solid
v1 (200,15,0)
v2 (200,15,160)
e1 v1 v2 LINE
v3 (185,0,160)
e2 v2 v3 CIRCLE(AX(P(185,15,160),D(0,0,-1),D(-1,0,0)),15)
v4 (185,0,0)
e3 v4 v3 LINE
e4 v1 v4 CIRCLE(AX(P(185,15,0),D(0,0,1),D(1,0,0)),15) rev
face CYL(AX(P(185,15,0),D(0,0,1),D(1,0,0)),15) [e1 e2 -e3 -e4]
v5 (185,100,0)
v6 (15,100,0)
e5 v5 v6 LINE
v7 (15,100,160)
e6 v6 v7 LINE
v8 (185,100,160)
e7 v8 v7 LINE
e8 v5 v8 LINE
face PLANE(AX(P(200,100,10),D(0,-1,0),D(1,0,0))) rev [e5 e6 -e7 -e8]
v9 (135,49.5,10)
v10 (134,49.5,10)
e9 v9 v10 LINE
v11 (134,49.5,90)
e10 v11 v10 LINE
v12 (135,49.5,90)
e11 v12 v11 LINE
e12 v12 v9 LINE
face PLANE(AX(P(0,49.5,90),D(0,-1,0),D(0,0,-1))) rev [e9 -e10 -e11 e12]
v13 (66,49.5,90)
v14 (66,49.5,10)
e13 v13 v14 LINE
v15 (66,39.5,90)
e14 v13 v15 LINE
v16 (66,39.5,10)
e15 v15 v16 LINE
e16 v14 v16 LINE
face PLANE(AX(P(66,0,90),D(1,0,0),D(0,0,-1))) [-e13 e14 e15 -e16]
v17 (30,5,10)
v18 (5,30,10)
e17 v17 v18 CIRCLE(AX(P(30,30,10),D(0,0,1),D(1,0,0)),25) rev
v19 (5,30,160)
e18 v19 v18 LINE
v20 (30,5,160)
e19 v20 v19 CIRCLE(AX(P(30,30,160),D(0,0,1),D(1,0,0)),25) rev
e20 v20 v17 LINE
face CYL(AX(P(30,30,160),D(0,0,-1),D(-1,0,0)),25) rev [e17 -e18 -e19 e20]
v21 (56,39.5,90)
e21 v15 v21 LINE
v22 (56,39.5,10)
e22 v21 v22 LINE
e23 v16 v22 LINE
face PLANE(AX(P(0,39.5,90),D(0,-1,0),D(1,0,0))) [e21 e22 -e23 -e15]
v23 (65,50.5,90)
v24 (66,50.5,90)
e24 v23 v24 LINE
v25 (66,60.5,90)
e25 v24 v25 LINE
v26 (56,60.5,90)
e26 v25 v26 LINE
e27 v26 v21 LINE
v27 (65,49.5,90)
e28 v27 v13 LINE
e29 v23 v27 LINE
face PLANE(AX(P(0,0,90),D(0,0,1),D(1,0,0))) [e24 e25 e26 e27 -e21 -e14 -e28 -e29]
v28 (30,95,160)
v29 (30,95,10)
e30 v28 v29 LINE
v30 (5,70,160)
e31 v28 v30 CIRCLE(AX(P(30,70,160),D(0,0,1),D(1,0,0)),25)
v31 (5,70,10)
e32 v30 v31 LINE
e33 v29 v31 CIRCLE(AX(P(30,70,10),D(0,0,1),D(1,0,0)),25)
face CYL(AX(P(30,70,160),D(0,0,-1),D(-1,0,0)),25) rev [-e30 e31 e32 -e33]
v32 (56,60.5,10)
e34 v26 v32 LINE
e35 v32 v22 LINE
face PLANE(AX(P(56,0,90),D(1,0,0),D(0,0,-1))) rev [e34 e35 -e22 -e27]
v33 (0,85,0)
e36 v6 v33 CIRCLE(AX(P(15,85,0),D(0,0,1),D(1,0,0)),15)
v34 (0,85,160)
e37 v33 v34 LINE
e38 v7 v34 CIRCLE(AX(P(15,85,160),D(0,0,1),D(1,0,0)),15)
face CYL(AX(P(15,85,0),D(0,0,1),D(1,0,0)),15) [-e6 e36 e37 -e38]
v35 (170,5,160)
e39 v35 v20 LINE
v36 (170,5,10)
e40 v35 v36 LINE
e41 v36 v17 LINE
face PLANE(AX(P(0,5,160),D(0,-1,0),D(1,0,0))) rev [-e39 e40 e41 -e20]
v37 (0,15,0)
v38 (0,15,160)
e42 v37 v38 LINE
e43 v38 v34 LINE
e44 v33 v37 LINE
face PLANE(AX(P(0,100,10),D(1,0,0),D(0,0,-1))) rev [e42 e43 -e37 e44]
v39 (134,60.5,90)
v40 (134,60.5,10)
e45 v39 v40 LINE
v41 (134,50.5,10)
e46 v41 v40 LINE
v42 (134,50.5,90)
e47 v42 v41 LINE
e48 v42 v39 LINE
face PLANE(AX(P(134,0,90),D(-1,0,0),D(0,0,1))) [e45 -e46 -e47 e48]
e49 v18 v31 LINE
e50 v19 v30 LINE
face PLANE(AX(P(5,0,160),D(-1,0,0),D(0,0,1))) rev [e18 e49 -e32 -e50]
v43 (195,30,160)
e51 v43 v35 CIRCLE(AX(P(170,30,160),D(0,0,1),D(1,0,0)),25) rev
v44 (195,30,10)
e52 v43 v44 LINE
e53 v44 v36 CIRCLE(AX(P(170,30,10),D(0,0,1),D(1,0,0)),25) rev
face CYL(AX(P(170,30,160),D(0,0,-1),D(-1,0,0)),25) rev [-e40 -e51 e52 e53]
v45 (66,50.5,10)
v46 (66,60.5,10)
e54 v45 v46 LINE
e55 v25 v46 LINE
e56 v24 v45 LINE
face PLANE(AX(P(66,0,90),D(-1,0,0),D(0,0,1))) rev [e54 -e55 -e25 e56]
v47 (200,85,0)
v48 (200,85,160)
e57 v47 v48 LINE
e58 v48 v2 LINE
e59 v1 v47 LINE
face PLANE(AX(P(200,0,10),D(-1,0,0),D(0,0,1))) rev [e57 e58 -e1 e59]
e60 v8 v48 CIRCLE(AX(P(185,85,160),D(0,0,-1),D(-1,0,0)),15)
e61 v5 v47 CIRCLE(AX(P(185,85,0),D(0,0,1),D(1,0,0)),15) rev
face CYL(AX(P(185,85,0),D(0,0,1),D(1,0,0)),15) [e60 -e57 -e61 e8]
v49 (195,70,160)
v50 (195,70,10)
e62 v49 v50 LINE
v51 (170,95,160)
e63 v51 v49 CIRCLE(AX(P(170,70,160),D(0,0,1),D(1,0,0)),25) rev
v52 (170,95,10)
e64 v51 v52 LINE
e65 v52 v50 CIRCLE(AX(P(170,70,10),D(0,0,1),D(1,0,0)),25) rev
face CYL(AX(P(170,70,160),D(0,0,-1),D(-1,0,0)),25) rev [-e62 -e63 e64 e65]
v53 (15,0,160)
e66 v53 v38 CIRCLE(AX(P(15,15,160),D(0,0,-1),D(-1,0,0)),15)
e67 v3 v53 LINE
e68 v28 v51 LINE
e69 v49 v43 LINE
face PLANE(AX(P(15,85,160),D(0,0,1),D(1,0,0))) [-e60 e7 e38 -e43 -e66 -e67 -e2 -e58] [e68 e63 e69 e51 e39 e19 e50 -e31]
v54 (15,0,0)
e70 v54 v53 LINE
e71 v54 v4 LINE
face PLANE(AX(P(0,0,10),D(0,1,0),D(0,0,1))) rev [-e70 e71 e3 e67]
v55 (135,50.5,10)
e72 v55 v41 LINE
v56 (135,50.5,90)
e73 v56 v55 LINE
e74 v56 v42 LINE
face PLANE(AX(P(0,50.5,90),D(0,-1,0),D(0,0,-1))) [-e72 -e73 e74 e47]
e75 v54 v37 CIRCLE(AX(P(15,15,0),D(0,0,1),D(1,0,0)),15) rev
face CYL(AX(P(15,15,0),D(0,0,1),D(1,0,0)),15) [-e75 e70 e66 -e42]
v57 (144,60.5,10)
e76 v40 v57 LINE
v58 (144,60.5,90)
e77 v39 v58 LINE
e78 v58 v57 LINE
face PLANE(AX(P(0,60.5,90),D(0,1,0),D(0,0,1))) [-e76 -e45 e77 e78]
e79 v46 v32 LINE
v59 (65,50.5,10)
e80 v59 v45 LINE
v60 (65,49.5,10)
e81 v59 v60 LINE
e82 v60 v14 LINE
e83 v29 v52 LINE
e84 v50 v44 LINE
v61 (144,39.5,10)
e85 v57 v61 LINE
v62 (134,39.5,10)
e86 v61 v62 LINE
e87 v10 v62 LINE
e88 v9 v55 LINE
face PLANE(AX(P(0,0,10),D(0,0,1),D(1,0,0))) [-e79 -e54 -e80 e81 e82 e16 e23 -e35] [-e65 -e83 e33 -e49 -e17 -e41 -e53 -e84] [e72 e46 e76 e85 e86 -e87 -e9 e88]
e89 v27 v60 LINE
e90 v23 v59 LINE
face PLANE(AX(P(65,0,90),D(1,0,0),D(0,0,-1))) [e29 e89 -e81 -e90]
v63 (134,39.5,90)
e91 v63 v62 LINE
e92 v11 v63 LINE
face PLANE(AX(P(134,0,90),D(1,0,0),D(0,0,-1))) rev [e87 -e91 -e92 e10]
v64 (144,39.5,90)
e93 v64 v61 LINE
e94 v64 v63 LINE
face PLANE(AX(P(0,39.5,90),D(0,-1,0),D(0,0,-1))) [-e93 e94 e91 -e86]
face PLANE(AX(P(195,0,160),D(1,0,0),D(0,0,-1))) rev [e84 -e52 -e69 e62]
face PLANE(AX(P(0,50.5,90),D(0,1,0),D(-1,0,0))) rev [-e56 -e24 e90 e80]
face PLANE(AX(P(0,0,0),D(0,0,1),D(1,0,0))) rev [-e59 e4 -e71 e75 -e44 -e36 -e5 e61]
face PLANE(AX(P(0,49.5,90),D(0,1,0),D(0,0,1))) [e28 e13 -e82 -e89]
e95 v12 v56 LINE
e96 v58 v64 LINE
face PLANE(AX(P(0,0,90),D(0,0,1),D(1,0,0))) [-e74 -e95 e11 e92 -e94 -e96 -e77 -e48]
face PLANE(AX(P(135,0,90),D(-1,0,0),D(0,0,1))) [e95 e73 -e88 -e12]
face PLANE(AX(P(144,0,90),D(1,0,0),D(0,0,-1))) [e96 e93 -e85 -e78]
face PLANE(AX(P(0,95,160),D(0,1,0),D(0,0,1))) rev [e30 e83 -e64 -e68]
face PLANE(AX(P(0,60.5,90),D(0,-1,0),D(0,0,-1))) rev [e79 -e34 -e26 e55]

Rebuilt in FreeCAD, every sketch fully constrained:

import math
import FreeCAD as App
import Part
import Sketcher
from FreeCAD import Vector


def add_polygon(sketch, points):
    """Adds a closed chain of lines whose ends are joined by coincident constraints."""
    first, n = sketch.GeometryCount, len(points)
    for a, b in zip(points, points[1:] + points[:1]):
        sketch.addGeometry(Part.LineSegment(App.Vector(*a, 0), App.Vector(*b, 0)), False)
    for i in range(n):
        sketch.addConstraint(Sketcher.Constraint("Coincident", first + i, 2, first + (i + 1) % n, 1))

doc = App.newDocument("Part")
body = doc.addObject("PartDesign::Body", "Body")

# Sketch on XY plane
sketch1 = body.newObject("Sketcher::SketchObject", "Sketch")
sketch1.AttachmentSupport = (doc.getObject("XY_Plane"), [""])
sketch1.MapMode = "FlatFace"
add_polygon(sketch1, [(0, 100), (0, 0), (200, 0), (200, 100)])  # lines 0-3
sketch1.addConstraint(Sketcher.Constraint("Vertical", 0))
sketch1.addConstraint(Sketcher.Constraint("Horizontal", 1))
sketch1.addConstraint(Sketcher.Constraint("Vertical", 2))
sketch1.addConstraint(Sketcher.Constraint("Horizontal", 3))
sketch1.addConstraint(Sketcher.Constraint("Coincident", 0, 2, -1, 1))
sketch1.addConstraint(Sketcher.Constraint("DistanceX", 1, 1, 1, 2, 200.0))
sketch1.addConstraint(Sketcher.Constraint("DistanceY", 0, 2, 0, 1, 100.0))
pad1 = body.newObject("PartDesign::Pad", "Pad")
pad1.Profile = sketch1
pad1.Length = 10

# Sketch on XY plane
sketch2 = body.newObject("Sketcher::SketchObject", "Sketch001")
sketch2.AttachmentSupport = (doc.getObject("XY_Plane"), [""])
sketch2.MapMode = "FlatFace"
sketch2.AttachmentOffset = App.Placement(Vector(0, 0, 10), App.Rotation())
sketch2.addGeometry(Part.ArcOfCircle(Part.Circle(Vector(15, 85, 0), Vector(0, 0, 1), 15), math.radians(90), math.radians(180)), False)
sketch2.addGeometry(Part.LineSegment(Vector(15, 100, 0), Vector(0, 100, 0)), False)
sketch2.addGeometry(Part.LineSegment(Vector(0, 100, 0), Vector(0, 85, 0)), False)
sketch2.addGeometry(Part.LineSegment(Vector(200, 100, 0), Vector(185, 100, 0)), False)
sketch2.addGeometry(Part.ArcOfCircle(Part.Circle(Vector(185, 85, 0), Vector(0, 0, 1), 15), math.radians(0), math.radians(90)), False)
sketch2.addGeometry(Part.LineSegment(Vector(200, 85, 0), Vector(200, 100, 0)), False)
sketch2.addGeometry(Part.LineSegment(Vector(200, 0, 0), Vector(200, 15, 0)), False)
sketch2.addGeometry(Part.ArcOfCircle(Part.Circle(Vector(185, 15, 0), Vector(0, 0, 1), 15), math.radians(-90), math.radians(0)), False)
sketch2.addGeometry(Part.LineSegment(Vector(185, 0, 0), Vector(200, 0, 0)), False)
sketch2.addGeometry(Part.ArcOfCircle(Part.Circle(Vector(15, 15, 0), Vector(0, 0, 1), 15), math.radians(180), math.radians(270)), False)
sketch2.addGeometry(Part.LineSegment(Vector(0, 15, 0), Vector(0, 0, 0)), False)
sketch2.addGeometry(Part.LineSegment(Vector(0, 0, 0), Vector(15, 0, 0)), False)
sketch2.addConstraint(Sketcher.Constraint("Tangent", 0, 1, 1, 1))
sketch2.addConstraint(Sketcher.Constraint("Coincident", 1, 2, 2, 1))
sketch2.addConstraint(Sketcher.Constraint("Tangent", 2, 2, 0, 2))
sketch2.addConstraint(Sketcher.Constraint("Tangent", 3, 2, 4, 2))
sketch2.addConstraint(Sketcher.Constraint("Tangent", 4, 1, 5, 1))
sketch2.addConstraint(Sketcher.Constraint("Coincident", 5, 2, 3, 1))
sketch2.addConstraint(Sketcher.Constraint("Tangent", 6, 2, 7, 2))
sketch2.addConstraint(Sketcher.Constraint("Tangent", 7, 1, 8, 1))
sketch2.addConstraint(Sketcher.Constraint("Coincident", 8, 2, 6, 1))
sketch2.addConstraint(Sketcher.Constraint("Tangent", 9, 1, 10, 1))
sketch2.addConstraint(Sketcher.Constraint("Coincident", 10, 2, 11, 1))
sketch2.addConstraint(Sketcher.Constraint("Tangent", 11, 2, 9, 2))
sketch2.addConstraint(Sketcher.Constraint("Horizontal", 1))
sketch2.addConstraint(Sketcher.Constraint("Vertical", 2))
sketch2.addConstraint(Sketcher.Constraint("Horizontal", 3))
sketch2.addConstraint(Sketcher.Constraint("Vertical", 5))
sketch2.addConstraint(Sketcher.Constraint("Vertical", 6))
sketch2.addConstraint(Sketcher.Constraint("Horizontal", 8))
sketch2.addConstraint(Sketcher.Constraint("Vertical", 10))
sketch2.addConstraint(Sketcher.Constraint("Horizontal", 11))
sketch2.addConstraint(Sketcher.Constraint("Coincident", 10, 2, -1, 1))
sketch2.addConstraint(Sketcher.Constraint("Equal", 0, 4))
sketch2.addConstraint(Sketcher.Constraint("Equal", 4, 7))
sketch2.addConstraint(Sketcher.Constraint("Equal", 7, 9))
sketch2.addConstraint(Sketcher.Constraint("PointOnObject", 1, 2, -2))
sketch2.addConstraint(Sketcher.Constraint("PointOnObject", 7, 1, -1))
sketch2.addConstraint(Sketcher.Constraint("Horizontal", 0, 3, 4, 3))
sketch2.addConstraint(Sketcher.Constraint("Vertical", 4, 3, 7, 3))
sketch2.addConstraint(Sketcher.Constraint("Radius", 0, 15.0))
sketch2.addConstraint(Sketcher.Constraint("DistanceY", -1, 1, 0, 3, 85.0))
sketch2.addConstraint(Sketcher.Constraint("DistanceX", -1, 1, 4, 3, 185.0))
pocket1 = body.newObject("PartDesign::Pocket", "Pocket")
pocket1.Profile = sketch2
pocket1.Length = 10

# Sketch on XY plane
sketch3 = body.newObject("Sketcher::SketchObject", "Sketch002")
sketch3.AttachmentSupport = (doc.getObject("XY_Plane"), [""])
sketch3.MapMode = "FlatFace"
sketch3.AttachmentOffset = App.Placement(Vector(0, 0, 160), App.Rotation())
sketch3.addGeometry(Part.ArcOfCircle(Part.Circle(Vector(185, 85, 0), Vector(0, 0, 1), 15), math.radians(0), math.radians(90)), False)
sketch3.addGeometry(Part.LineSegment(Vector(185, 100, 0), Vector(15, 100, 0)), False)
sketch3.addGeometry(Part.ArcOfCircle(Part.Circle(Vector(15, 85, 0), Vector(0, 0, 1), 15), math.radians(90), math.radians(180)), False)
sketch3.addGeometry(Part.LineSegment(Vector(0, 85, 0), Vector(0, 15, 0)), False)
sketch3.addGeometry(Part.ArcOfCircle(Part.Circle(Vector(15, 15, 0), Vector(0, 0, 1), 15), math.radians(180), math.radians(270)), False)
sketch3.addGeometry(Part.LineSegment(Vector(15, 0, 0), Vector(185, 0, 0)), False)
sketch3.addGeometry(Part.ArcOfCircle(Part.Circle(Vector(185, 15, 0), Vector(0, 0, 1), 15), math.radians(-90), math.radians(0)), False)
sketch3.addGeometry(Part.LineSegment(Vector(200, 15, 0), Vector(200, 85, 0)), False)
sketch3.addGeometry(Part.LineSegment(Vector(30, 95, 0), Vector(170, 95, 0)), False)
sketch3.addGeometry(Part.ArcOfCircle(Part.Circle(Vector(170, 70, 0), Vector(0, 0, 1), 25), math.radians(0), math.radians(90)), False)
sketch3.addGeometry(Part.LineSegment(Vector(195, 70, 0), Vector(195, 30, 0)), False)
sketch3.addGeometry(Part.ArcOfCircle(Part.Circle(Vector(170, 30, 0), Vector(0, 0, 1), 25), math.radians(-90), math.radians(0)), False)
sketch3.addGeometry(Part.LineSegment(Vector(170, 5, 0), Vector(30, 5, 0)), False)
sketch3.addGeometry(Part.ArcOfCircle(Part.Circle(Vector(30, 30, 0), Vector(0, 0, 1), 25), math.radians(180), math.radians(270)), False)
sketch3.addGeometry(Part.LineSegment(Vector(5, 30, 0), Vector(5, 70, 0)), False)
sketch3.addGeometry(Part.ArcOfCircle(Part.Circle(Vector(30, 70, 0), Vector(0, 0, 1), 25), math.radians(90), math.radians(180)), False)
sketch3.addConstraint(Sketcher.Constraint("Tangent", 0, 2, 1, 1))
sketch3.addConstraint(Sketcher.Constraint("Tangent", 1, 2, 2, 1))
sketch3.addConstraint(Sketcher.Constraint("Tangent", 2, 2, 3, 1))
sketch3.addConstraint(Sketcher.Constraint("Tangent", 3, 2, 4, 1))
sketch3.addConstraint(Sketcher.Constraint("Tangent", 4, 2, 5, 1))
sketch3.addConstraint(Sketcher.Constraint("Tangent", 5, 2, 6, 1))
sketch3.addConstraint(Sketcher.Constraint("Tangent", 6, 2, 7, 1))
sketch3.addConstraint(Sketcher.Constraint("Tangent", 7, 2, 0, 1))
sketch3.addConstraint(Sketcher.Constraint("Tangent", 8, 2, 9, 2))
sketch3.addConstraint(Sketcher.Constraint("Tangent", 9, 1, 10, 1))
sketch3.addConstraint(Sketcher.Constraint("Tangent", 10, 2, 11, 2))
sketch3.addConstraint(Sketcher.Constraint("Tangent", 11, 1, 12, 1))
sketch3.addConstraint(Sketcher.Constraint("Tangent", 12, 2, 13, 2))
sketch3.addConstraint(Sketcher.Constraint("Tangent", 13, 1, 14, 1))
sketch3.addConstraint(Sketcher.Constraint("Tangent", 14, 2, 15, 2))
sketch3.addConstraint(Sketcher.Constraint("Tangent", 15, 1, 8, 1))
sketch3.addConstraint(Sketcher.Constraint("Horizontal", 1))
sketch3.addConstraint(Sketcher.Constraint("Vertical", 3))
sketch3.addConstraint(Sketcher.Constraint("Horizontal", 5))
sketch3.addConstraint(Sketcher.Constraint("Vertical", 7))
sketch3.addConstraint(Sketcher.Constraint("Horizontal", 8))
sketch3.addConstraint(Sketcher.Constraint("Vertical", 10))
sketch3.addConstraint(Sketcher.Constraint("Horizontal", 12))
sketch3.addConstraint(Sketcher.Constraint("Vertical", 14))
sketch3.addConstraint(Sketcher.Constraint("Equal", 0, 2))
sketch3.addConstraint(Sketcher.Constraint("Equal", 2, 4))
sketch3.addConstraint(Sketcher.Constraint("Equal", 4, 6))
sketch3.addConstraint(Sketcher.Constraint("Equal", 9, 11))
sketch3.addConstraint(Sketcher.Constraint("Equal", 11, 13))
sketch3.addConstraint(Sketcher.Constraint("Equal", 13, 15))
sketch3.addConstraint(Sketcher.Constraint("PointOnObject", 2, 2, -2))
sketch3.addConstraint(Sketcher.Constraint("PointOnObject", 4, 2, -1))
sketch3.addConstraint(Sketcher.Constraint("Radius", 0, 15.0))
sketch3.addConstraint(Sketcher.Constraint("Radius", 9, 25.0))
sketch3.addConstraint(Sketcher.Constraint("DistanceX", 1, 2, 1, 1, 170.0))
sketch3.addConstraint(Sketcher.Constraint("DistanceX", 8, 1, 8, 2, 140.0))
sketch3.addConstraint(Sketcher.Constraint("DistanceY", 3, 2, 3, 1, 70.0))
sketch3.addConstraint(Sketcher.Constraint("DistanceY", 10, 2, 10, 1, 40.0))
sketch3.addConstraint(Sketcher.Constraint("DistanceX", -1, 1, 9, 3, 170.0))
sketch3.addConstraint(Sketcher.Constraint("DistanceY", -1, 1, 9, 3, 70.0))
pad2 = body.newObject("PartDesign::Pad", "Pad001")
pad2.Profile = sketch3
pad2.Length = 150
pad2.Reversed = True

# Sketch on XY plane
sketch4 = body.newObject("Sketcher::SketchObject", "Sketch003")
sketch4.AttachmentSupport = (doc.getObject("XY_Plane"), [""])
sketch4.MapMode = "FlatFace"
sketch4.AttachmentOffset = App.Placement(Vector(0, 0, 10), App.Rotation())
add_polygon(sketch4, [(66, 60.5), (56, 60.5), (56, 39.5), (66, 39.5), (66, 49.5), (65, 49.5), (65, 50.5), (66, 50.5)])  # lines 0-7
add_polygon(sketch4, [(134, 39.5), (144, 39.5), (144, 60.5), (134, 60.5), (134, 50.5), (135, 50.5), (135, 49.5), (134, 49.5)])  # lines 8-15
sketch4.addConstraint(Sketcher.Constraint("Horizontal", 0))
sketch4.addConstraint(Sketcher.Constraint("Vertical", 1))
sketch4.addConstraint(Sketcher.Constraint("Horizontal", 2))
sketch4.addConstraint(Sketcher.Constraint("Vertical", 3))
sketch4.addConstraint(Sketcher.Constraint("Horizontal", 4))
sketch4.addConstraint(Sketcher.Constraint("Vertical", 5))
sketch4.addConstraint(Sketcher.Constraint("Horizontal", 6))
sketch4.addConstraint(Sketcher.Constraint("Vertical", 7))
sketch4.addConstraint(Sketcher.Constraint("Horizontal", 8))
sketch4.addConstraint(Sketcher.Constraint("Vertical", 9))
sketch4.addConstraint(Sketcher.Constraint("Horizontal", 10))
sketch4.addConstraint(Sketcher.Constraint("Vertical", 11))
sketch4.addConstraint(Sketcher.Constraint("Horizontal", 12))
sketch4.addConstraint(Sketcher.Constraint("Vertical", 13))
sketch4.addConstraint(Sketcher.Constraint("Horizontal", 14))
sketch4.addConstraint(Sketcher.Constraint("Vertical", 15))
sketch4.addConstraint(Sketcher.Constraint("Horizontal", 2, 2, 8, 2))
sketch4.addConstraint(Sketcher.Constraint("Horizontal", 7, 2, 9, 2))
sketch4.addConstraint(Sketcher.Constraint("Horizontal", 6, 2, 11, 2))
sketch4.addConstraint(Sketcher.Constraint("Horizontal", 4, 2, 13, 2))
sketch4.addConstraint(Sketcher.Constraint("Vertical", 3, 2, 6, 2))
sketch4.addConstraint(Sketcher.Constraint("Vertical", 11, 2, 14, 2))
sketch4.addConstraint(Sketcher.Constraint("Equal", 2, 8))
sketch4.addConstraint(Sketcher.Constraint("Equal", 6, 12))
sketch4.addConstraint(Sketcher.Constraint("Equal", 10, 3))
sketch4.addConstraint(Sketcher.Constraint("Equal", 14, 5))
sketch4.addConstraint(Sketcher.Constraint("Equal", 3, 7))
sketch4.addConstraint(Sketcher.Constraint("DistanceX", 0, 2, 0, 1, 10.0))
sketch4.addConstraint(Sketcher.Constraint("DistanceX", 4, 2, 4, 1, 1.0))
sketch4.addConstraint(Sketcher.Constraint("DistanceX", -1, 1, 0, 2, 56.0))
sketch4.addConstraint(Sketcher.Constraint("DistanceX", -1, 1, 8, 2, 144.0))
sketch4.addConstraint(Sketcher.Constraint("DistanceY", -1, 1, 0, 2, 60.5))
pad3 = body.newObject("PartDesign::Pad", "Pad002")
pad3.Profile = sketch4
pad3.Length = 80

doc.recompute()
